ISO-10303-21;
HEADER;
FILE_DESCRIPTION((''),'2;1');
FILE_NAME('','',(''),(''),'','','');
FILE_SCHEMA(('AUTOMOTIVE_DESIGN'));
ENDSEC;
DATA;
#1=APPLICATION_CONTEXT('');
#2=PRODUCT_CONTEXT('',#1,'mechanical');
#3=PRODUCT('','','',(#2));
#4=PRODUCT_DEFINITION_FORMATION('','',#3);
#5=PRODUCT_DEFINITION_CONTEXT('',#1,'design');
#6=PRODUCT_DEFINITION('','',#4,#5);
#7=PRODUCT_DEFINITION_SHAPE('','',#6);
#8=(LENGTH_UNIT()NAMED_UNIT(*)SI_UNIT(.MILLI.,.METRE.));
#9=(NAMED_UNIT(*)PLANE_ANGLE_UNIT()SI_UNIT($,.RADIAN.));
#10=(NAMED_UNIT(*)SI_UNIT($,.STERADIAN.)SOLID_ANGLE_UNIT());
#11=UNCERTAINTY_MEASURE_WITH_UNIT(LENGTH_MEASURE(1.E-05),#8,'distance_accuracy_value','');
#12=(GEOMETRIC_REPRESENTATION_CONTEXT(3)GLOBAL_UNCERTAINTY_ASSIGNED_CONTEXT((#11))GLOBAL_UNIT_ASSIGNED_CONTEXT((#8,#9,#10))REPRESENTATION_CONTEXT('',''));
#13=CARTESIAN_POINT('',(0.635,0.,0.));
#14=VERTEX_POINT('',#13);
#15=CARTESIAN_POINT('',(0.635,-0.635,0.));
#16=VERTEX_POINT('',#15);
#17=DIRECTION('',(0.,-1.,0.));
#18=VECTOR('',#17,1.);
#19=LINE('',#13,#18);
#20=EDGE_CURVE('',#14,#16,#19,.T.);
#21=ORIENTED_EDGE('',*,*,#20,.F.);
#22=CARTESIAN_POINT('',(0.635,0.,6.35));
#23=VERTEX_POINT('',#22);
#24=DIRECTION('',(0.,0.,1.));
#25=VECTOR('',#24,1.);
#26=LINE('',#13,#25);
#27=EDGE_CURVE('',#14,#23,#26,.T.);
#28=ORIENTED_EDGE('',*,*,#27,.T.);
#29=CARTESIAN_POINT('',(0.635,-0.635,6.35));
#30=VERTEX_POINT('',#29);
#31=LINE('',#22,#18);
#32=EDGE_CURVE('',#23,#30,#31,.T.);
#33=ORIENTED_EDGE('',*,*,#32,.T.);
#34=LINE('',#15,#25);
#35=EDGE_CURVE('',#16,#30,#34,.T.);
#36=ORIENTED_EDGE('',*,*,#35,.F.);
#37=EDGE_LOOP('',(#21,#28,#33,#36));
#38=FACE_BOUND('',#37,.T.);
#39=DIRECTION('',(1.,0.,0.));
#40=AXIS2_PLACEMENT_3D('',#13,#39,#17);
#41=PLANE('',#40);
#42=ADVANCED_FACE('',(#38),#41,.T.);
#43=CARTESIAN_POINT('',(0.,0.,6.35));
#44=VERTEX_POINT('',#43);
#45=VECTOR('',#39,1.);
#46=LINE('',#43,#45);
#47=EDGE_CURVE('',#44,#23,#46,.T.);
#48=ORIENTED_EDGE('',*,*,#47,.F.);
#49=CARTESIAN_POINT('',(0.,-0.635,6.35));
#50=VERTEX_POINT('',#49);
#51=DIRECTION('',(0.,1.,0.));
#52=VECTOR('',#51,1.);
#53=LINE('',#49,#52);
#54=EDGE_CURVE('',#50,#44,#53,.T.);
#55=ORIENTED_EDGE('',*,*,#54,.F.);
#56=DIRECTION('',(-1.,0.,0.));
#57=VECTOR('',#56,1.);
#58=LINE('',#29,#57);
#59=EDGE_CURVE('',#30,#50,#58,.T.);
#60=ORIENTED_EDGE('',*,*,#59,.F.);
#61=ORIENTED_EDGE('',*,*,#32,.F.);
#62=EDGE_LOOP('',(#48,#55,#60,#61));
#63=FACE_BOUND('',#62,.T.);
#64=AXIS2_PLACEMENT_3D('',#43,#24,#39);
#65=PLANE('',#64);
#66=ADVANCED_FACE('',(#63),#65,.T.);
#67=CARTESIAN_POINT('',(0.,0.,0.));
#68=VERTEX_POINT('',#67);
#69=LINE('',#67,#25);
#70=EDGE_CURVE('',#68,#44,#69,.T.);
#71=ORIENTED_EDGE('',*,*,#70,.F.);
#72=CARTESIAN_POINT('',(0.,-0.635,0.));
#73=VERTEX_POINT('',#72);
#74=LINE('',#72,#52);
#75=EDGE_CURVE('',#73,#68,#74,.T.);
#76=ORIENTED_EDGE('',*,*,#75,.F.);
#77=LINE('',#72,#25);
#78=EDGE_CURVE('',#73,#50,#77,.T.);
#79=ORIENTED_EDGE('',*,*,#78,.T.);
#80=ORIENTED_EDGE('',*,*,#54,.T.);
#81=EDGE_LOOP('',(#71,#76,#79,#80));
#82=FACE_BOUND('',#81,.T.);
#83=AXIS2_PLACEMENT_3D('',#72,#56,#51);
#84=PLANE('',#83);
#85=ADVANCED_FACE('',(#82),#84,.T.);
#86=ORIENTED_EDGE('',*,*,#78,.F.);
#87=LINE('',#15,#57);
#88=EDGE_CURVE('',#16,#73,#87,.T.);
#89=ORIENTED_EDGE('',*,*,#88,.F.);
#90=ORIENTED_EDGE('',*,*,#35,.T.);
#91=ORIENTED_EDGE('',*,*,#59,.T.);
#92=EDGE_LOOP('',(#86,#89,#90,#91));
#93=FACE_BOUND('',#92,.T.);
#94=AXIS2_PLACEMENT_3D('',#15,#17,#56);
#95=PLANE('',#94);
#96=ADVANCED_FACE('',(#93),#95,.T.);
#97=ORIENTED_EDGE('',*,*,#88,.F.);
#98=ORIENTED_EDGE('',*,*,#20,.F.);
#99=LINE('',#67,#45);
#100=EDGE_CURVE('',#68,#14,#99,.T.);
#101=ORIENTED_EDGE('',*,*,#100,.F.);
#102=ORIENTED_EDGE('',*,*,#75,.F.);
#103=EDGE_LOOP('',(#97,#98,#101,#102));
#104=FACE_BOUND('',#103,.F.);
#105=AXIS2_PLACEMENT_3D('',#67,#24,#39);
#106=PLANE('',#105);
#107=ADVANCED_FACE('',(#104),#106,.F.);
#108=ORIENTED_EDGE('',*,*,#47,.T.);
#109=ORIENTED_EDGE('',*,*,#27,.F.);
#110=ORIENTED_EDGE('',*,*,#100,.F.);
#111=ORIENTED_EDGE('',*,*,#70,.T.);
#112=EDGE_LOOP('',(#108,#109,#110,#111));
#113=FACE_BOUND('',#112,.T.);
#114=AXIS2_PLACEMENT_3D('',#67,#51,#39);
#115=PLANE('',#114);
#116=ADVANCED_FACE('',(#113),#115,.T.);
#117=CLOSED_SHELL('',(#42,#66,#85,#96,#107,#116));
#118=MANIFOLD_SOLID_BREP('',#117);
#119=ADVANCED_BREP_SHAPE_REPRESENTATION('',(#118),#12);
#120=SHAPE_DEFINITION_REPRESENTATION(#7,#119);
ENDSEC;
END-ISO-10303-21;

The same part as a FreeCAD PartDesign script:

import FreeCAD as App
import Part
import Sketcher

V = App.Vector
Q = App.Units.Quantity

doc = App.newDocument("Part")
body = doc.addObject("PartDesign::Body", "Body")

sketch1 = body.newObject("Sketcher::SketchObject", "Sketch")
sketch1.AttachmentSupport = (doc.getObject("XY_Plane"), [""])
sketch1.MapMode = "FlatFace"
sketch1.addGeometry([
    Part.LineSegment(V(0.6, 0, 0), V(0, 0, 0)),
    Part.LineSegment(V(0, 0, 0), V(0, -0.6, 0)),
    Part.LineSegment(V(0, -0.6, 0), V(0.6, -0.6, 0)),
    Part.LineSegment(V(0.6, -0.6, 0), V(0.6, 0, 0)),
], False)
sketch1.addConstraint([
    Sketcher.Constraint("Coincident", 0, 2, 1, 1),
    Sketcher.Constraint("Coincident", 1, 2, 2, 1),
    Sketcher.Constraint("Coincident", 2, 2, 3, 1),
    Sketcher.Constraint("Coincident", 3, 2, 0, 1),
    Sketcher.Constraint("Horizontal", 0),
    Sketcher.Constraint("Vertical", 1),
    Sketcher.Constraint("Horizontal", 2),
    Sketcher.Constraint("Vertical", 3),
    Sketcher.Constraint("Coincident", 0, 2, -1, 1),
    Sketcher.Constraint("Equal", 2, 1),
    Sketcher.Constraint("DistanceX", 0, 2, 0, 1, Q("0.025 in")),
])
pad1 = body.newObject("PartDesign::Pad", "Pad")
pad1.Profile = sketch1
pad1.Length = Q("0.25 in")

doc.recompute()
